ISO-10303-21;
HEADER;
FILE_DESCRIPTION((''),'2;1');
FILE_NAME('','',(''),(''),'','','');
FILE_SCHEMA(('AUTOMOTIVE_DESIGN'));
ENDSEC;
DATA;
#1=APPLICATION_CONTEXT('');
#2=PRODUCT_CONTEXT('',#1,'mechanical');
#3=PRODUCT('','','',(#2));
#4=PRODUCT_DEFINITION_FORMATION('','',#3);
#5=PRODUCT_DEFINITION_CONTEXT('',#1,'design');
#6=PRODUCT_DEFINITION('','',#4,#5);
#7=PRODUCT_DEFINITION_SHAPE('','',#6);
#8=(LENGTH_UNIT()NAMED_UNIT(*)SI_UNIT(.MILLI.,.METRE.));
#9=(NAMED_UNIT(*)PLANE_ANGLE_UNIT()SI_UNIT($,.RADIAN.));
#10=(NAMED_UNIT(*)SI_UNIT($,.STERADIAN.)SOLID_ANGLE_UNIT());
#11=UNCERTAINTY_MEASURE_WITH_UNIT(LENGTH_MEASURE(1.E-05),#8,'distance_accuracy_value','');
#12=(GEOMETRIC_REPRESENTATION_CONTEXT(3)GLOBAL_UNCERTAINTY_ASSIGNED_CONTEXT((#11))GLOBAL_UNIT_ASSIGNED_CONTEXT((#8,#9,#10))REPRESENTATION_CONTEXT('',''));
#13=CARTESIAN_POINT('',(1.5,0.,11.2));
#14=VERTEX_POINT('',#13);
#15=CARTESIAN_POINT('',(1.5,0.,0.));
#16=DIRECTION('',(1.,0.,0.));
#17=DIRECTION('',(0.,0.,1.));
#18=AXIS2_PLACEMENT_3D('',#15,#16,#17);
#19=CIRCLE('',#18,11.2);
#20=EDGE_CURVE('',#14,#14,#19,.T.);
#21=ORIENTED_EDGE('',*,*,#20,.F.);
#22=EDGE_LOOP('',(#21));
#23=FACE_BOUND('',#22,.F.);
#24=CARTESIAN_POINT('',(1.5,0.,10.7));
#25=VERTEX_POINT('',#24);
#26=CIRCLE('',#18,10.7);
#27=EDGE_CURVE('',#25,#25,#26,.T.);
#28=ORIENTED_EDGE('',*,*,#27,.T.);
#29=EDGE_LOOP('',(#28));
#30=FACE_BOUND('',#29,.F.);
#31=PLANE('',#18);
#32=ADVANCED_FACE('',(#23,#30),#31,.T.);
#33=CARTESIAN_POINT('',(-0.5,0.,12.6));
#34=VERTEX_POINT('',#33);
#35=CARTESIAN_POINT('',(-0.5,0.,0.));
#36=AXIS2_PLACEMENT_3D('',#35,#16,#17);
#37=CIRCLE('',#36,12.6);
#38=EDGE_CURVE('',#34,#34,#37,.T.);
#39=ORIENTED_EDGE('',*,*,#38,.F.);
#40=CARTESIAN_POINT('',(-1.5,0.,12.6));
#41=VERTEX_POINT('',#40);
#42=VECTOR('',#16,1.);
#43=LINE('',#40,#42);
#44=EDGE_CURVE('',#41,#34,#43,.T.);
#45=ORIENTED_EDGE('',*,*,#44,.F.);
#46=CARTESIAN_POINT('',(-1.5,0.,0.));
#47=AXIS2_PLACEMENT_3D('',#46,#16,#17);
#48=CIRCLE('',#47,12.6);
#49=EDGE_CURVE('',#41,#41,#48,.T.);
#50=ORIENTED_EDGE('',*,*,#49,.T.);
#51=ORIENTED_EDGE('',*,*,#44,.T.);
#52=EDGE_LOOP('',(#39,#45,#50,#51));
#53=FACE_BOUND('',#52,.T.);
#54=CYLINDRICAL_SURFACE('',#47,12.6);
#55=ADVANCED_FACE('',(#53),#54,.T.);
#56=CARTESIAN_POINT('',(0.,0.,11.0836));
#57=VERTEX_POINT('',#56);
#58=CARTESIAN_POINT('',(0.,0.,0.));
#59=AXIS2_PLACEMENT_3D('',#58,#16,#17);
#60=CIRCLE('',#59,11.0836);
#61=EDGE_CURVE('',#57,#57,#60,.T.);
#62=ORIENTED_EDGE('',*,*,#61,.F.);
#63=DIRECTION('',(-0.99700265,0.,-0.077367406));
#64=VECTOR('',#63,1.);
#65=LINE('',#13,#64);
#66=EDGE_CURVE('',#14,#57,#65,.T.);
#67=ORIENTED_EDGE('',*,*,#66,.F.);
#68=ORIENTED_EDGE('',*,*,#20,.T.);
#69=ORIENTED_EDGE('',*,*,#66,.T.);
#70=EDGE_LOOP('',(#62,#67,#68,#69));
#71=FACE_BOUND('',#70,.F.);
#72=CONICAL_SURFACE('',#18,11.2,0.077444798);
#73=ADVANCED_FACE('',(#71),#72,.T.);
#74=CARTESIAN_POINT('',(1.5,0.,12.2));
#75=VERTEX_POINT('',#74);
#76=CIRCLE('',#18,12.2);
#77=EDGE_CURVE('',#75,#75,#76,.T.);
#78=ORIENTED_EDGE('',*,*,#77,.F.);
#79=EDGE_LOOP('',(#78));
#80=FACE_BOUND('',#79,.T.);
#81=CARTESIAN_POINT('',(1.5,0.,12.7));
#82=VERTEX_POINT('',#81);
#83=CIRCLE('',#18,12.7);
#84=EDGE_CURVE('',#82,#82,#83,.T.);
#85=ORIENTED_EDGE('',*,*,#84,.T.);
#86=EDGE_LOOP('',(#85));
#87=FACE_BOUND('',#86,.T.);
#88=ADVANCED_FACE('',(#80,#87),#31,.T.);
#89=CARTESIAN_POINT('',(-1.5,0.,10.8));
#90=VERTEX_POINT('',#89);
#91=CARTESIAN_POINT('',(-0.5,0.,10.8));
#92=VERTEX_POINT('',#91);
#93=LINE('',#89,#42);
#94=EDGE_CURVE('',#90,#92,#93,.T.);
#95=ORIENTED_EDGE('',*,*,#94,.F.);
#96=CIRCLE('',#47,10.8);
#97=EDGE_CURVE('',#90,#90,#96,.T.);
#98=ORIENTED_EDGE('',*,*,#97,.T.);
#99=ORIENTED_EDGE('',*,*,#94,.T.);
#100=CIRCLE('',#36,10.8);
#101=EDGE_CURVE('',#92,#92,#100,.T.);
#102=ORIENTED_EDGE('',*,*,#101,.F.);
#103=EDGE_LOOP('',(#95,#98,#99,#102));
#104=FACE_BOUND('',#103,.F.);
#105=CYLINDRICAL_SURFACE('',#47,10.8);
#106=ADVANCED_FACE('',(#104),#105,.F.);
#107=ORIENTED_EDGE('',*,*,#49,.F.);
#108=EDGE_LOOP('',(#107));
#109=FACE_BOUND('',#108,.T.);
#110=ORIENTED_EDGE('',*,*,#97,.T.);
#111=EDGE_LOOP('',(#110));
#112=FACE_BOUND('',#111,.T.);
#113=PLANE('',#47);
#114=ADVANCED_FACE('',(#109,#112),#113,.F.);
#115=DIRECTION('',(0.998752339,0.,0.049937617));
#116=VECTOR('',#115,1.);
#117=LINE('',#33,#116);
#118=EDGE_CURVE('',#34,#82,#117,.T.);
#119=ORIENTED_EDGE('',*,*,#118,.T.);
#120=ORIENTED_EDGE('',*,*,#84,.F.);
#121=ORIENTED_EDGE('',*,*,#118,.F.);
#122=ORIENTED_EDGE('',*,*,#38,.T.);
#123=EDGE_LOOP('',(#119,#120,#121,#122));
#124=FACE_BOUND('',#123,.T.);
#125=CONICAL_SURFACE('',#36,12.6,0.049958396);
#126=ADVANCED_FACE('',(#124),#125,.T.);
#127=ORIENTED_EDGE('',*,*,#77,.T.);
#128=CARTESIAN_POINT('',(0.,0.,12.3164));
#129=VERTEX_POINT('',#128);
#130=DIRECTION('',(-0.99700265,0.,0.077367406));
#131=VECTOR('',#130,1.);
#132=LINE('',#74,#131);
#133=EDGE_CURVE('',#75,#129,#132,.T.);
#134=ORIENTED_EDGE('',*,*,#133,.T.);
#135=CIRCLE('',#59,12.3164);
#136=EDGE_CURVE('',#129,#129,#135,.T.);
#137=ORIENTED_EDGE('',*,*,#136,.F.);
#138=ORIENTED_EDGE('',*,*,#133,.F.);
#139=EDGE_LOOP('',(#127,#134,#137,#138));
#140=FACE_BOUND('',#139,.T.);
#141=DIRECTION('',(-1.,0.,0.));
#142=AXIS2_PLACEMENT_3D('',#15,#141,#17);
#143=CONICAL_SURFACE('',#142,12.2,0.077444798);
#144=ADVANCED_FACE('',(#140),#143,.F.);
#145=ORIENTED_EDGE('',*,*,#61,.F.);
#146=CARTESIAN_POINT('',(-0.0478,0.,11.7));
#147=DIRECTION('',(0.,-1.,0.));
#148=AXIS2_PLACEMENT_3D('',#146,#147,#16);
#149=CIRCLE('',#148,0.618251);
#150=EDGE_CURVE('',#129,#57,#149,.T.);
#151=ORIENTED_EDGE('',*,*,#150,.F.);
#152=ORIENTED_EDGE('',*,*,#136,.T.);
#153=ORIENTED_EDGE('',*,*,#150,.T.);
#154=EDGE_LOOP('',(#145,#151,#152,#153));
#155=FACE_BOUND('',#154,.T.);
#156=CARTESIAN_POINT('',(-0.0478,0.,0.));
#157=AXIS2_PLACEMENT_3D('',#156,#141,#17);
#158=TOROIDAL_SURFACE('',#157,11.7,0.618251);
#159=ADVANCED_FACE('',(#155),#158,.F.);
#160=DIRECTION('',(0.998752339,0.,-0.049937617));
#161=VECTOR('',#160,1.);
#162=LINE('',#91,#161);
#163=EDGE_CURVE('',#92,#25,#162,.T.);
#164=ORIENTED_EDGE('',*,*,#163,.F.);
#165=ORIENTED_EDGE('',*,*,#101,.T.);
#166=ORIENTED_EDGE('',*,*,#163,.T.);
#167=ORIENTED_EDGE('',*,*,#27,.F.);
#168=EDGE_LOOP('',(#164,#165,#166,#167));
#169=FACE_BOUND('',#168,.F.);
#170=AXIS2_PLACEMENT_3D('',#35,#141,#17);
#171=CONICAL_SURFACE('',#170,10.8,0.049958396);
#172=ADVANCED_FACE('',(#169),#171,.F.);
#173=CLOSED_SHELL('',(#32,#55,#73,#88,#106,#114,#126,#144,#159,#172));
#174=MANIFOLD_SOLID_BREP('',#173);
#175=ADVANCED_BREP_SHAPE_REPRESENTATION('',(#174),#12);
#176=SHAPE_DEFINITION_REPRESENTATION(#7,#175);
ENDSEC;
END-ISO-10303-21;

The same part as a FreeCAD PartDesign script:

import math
import FreeCAD as App
import Part
import Sketcher

doc = App.newDocument("Part")
body = doc.addObject("PartDesign::Body", "Body")

# Sketch on XZ plane
sketch1 = doc.addObject("Sketcher::SketchObject", "Sketch")
body.addObject(sketch1)
sketch1.AttachmentSupport = (doc.XZ_Plane, [""])
sketch1.MapMode = "FlatFace"
sketch1.addGeometry([
    Part.LineSegment(App.Vector(-1.5, 12.6, 0), App.Vector(-1.5, 10.8, 0)),  # 0
    Part.LineSegment(App.Vector(-1.5, 10.8, 0), App.Vector(-0.5, 10.8, 0)),  # 1
    Part.LineSegment(App.Vector(-0.5, 10.8, 0), App.Vector(1.5, 10.7, 0)),  # 2
    Part.LineSegment(App.Vector(1.5, 10.7, 0), App.Vector(1.5, 11.2, 0)),  # 3
    Part.LineSegment(App.Vector(1.5, 11.2, 0), App.Vector(0, 11.1, 0)),  # 4
    Part.ArcOfCircle(Part.Circle(App.Vector(0, 11.7, 0), App.Vector(0, 0, 1), 0.6), math.radians(86), math.radians(274)),  # 5
    Part.LineSegment(App.Vector(0, 12.3, 0), App.Vector(1.5, 12.2, 0)),  # 6
    Part.LineSegment(App.Vector(1.5, 12.2, 0), App.Vector(1.5, 12.7, 0)),  # 7
    Part.LineSegment(App.Vector(1.5, 12.7, 0), App.Vector(-0.5, 12.6, 0)),  # 8
    Part.LineSegment(App.Vector(-0.5, 12.6, 0), App.Vector(-1.5, 12.6, 0)),  # 9
], False)
sketch1.addConstraint([
    Sketcher.Constraint("Coincident", 0, 2, 1, 1),
    Sketcher.Constraint("Coincident", 1, 2, 2, 1),
    Sketcher.Constraint("Coincident", 2, 2, 3, 1),
    Sketcher.Constraint("Coincident", 3, 2, 4, 1),
    Sketcher.Constraint("Tangent", 4, 2, 5, 2),
    Sketcher.Constraint("Tangent", 5, 1, 6, 1),
    Sketcher.Constraint("Coincident", 6, 2, 7, 1),
    Sketcher.Constraint("Coincident", 7, 2, 8, 1),
    Sketcher.Constraint("Coincident", 8, 2, 9, 1),
    Sketcher.Constraint("Coincident", 9, 2, 0, 1),
    Sketcher.Constraint("Vertical", 0),
    Sketcher.Constraint("Horizontal", 1),
    Sketcher.Constraint("Vertical", 3),
    Sketcher.Constraint("Vertical", 7),
    Sketcher.Constraint("Horizontal", 9),
    Sketcher.Constraint("PointOnObject", 4, 2, -2),
    Sketcher.Constraint("PointOnObject", 5, 1, -2),
    Sketcher.Constraint("Vertical", 3, 2, 6, 2),
    Sketcher.Constraint("Vertical", 1, 2, 8, 2),
    Sketcher.Constraint("Equal", 3, 7),
    Sketcher.Constraint("Equal", 2, 8),
    Sketcher.Constraint("DistanceX", 0, 2, -1, 1, 1.5),
    Sketcher.Constraint("DistanceX", -1, 1, 2, 2, 1.5),
    Sketcher.Constraint("DistanceY", 2, 2, 6, 2, 1.5),
    Sketcher.Constraint("DistanceX", 1, 1, 1, 2, 1.0),
    Sketcher.Constraint("DistanceY", 0, 2, 0, 1, 1.8),
    Sketcher.Constraint("DistanceY", 3, 1, 3, 2, 0.5),
    Sketcher.Constraint("DistanceY", -1, 1, 5, 3, 11.7),
    Sketcher.Constraint("Radius", 5, 0.6183),
])
revolution = doc.addObject("PartDesign::Revolution", "Revolution")
body.addObject(revolution)
revolution.Profile = sketch1
revolution.ReferenceAxis = (sketch1, ["H_Axis"])
revolution.Angle = 360

doc.recompute()
